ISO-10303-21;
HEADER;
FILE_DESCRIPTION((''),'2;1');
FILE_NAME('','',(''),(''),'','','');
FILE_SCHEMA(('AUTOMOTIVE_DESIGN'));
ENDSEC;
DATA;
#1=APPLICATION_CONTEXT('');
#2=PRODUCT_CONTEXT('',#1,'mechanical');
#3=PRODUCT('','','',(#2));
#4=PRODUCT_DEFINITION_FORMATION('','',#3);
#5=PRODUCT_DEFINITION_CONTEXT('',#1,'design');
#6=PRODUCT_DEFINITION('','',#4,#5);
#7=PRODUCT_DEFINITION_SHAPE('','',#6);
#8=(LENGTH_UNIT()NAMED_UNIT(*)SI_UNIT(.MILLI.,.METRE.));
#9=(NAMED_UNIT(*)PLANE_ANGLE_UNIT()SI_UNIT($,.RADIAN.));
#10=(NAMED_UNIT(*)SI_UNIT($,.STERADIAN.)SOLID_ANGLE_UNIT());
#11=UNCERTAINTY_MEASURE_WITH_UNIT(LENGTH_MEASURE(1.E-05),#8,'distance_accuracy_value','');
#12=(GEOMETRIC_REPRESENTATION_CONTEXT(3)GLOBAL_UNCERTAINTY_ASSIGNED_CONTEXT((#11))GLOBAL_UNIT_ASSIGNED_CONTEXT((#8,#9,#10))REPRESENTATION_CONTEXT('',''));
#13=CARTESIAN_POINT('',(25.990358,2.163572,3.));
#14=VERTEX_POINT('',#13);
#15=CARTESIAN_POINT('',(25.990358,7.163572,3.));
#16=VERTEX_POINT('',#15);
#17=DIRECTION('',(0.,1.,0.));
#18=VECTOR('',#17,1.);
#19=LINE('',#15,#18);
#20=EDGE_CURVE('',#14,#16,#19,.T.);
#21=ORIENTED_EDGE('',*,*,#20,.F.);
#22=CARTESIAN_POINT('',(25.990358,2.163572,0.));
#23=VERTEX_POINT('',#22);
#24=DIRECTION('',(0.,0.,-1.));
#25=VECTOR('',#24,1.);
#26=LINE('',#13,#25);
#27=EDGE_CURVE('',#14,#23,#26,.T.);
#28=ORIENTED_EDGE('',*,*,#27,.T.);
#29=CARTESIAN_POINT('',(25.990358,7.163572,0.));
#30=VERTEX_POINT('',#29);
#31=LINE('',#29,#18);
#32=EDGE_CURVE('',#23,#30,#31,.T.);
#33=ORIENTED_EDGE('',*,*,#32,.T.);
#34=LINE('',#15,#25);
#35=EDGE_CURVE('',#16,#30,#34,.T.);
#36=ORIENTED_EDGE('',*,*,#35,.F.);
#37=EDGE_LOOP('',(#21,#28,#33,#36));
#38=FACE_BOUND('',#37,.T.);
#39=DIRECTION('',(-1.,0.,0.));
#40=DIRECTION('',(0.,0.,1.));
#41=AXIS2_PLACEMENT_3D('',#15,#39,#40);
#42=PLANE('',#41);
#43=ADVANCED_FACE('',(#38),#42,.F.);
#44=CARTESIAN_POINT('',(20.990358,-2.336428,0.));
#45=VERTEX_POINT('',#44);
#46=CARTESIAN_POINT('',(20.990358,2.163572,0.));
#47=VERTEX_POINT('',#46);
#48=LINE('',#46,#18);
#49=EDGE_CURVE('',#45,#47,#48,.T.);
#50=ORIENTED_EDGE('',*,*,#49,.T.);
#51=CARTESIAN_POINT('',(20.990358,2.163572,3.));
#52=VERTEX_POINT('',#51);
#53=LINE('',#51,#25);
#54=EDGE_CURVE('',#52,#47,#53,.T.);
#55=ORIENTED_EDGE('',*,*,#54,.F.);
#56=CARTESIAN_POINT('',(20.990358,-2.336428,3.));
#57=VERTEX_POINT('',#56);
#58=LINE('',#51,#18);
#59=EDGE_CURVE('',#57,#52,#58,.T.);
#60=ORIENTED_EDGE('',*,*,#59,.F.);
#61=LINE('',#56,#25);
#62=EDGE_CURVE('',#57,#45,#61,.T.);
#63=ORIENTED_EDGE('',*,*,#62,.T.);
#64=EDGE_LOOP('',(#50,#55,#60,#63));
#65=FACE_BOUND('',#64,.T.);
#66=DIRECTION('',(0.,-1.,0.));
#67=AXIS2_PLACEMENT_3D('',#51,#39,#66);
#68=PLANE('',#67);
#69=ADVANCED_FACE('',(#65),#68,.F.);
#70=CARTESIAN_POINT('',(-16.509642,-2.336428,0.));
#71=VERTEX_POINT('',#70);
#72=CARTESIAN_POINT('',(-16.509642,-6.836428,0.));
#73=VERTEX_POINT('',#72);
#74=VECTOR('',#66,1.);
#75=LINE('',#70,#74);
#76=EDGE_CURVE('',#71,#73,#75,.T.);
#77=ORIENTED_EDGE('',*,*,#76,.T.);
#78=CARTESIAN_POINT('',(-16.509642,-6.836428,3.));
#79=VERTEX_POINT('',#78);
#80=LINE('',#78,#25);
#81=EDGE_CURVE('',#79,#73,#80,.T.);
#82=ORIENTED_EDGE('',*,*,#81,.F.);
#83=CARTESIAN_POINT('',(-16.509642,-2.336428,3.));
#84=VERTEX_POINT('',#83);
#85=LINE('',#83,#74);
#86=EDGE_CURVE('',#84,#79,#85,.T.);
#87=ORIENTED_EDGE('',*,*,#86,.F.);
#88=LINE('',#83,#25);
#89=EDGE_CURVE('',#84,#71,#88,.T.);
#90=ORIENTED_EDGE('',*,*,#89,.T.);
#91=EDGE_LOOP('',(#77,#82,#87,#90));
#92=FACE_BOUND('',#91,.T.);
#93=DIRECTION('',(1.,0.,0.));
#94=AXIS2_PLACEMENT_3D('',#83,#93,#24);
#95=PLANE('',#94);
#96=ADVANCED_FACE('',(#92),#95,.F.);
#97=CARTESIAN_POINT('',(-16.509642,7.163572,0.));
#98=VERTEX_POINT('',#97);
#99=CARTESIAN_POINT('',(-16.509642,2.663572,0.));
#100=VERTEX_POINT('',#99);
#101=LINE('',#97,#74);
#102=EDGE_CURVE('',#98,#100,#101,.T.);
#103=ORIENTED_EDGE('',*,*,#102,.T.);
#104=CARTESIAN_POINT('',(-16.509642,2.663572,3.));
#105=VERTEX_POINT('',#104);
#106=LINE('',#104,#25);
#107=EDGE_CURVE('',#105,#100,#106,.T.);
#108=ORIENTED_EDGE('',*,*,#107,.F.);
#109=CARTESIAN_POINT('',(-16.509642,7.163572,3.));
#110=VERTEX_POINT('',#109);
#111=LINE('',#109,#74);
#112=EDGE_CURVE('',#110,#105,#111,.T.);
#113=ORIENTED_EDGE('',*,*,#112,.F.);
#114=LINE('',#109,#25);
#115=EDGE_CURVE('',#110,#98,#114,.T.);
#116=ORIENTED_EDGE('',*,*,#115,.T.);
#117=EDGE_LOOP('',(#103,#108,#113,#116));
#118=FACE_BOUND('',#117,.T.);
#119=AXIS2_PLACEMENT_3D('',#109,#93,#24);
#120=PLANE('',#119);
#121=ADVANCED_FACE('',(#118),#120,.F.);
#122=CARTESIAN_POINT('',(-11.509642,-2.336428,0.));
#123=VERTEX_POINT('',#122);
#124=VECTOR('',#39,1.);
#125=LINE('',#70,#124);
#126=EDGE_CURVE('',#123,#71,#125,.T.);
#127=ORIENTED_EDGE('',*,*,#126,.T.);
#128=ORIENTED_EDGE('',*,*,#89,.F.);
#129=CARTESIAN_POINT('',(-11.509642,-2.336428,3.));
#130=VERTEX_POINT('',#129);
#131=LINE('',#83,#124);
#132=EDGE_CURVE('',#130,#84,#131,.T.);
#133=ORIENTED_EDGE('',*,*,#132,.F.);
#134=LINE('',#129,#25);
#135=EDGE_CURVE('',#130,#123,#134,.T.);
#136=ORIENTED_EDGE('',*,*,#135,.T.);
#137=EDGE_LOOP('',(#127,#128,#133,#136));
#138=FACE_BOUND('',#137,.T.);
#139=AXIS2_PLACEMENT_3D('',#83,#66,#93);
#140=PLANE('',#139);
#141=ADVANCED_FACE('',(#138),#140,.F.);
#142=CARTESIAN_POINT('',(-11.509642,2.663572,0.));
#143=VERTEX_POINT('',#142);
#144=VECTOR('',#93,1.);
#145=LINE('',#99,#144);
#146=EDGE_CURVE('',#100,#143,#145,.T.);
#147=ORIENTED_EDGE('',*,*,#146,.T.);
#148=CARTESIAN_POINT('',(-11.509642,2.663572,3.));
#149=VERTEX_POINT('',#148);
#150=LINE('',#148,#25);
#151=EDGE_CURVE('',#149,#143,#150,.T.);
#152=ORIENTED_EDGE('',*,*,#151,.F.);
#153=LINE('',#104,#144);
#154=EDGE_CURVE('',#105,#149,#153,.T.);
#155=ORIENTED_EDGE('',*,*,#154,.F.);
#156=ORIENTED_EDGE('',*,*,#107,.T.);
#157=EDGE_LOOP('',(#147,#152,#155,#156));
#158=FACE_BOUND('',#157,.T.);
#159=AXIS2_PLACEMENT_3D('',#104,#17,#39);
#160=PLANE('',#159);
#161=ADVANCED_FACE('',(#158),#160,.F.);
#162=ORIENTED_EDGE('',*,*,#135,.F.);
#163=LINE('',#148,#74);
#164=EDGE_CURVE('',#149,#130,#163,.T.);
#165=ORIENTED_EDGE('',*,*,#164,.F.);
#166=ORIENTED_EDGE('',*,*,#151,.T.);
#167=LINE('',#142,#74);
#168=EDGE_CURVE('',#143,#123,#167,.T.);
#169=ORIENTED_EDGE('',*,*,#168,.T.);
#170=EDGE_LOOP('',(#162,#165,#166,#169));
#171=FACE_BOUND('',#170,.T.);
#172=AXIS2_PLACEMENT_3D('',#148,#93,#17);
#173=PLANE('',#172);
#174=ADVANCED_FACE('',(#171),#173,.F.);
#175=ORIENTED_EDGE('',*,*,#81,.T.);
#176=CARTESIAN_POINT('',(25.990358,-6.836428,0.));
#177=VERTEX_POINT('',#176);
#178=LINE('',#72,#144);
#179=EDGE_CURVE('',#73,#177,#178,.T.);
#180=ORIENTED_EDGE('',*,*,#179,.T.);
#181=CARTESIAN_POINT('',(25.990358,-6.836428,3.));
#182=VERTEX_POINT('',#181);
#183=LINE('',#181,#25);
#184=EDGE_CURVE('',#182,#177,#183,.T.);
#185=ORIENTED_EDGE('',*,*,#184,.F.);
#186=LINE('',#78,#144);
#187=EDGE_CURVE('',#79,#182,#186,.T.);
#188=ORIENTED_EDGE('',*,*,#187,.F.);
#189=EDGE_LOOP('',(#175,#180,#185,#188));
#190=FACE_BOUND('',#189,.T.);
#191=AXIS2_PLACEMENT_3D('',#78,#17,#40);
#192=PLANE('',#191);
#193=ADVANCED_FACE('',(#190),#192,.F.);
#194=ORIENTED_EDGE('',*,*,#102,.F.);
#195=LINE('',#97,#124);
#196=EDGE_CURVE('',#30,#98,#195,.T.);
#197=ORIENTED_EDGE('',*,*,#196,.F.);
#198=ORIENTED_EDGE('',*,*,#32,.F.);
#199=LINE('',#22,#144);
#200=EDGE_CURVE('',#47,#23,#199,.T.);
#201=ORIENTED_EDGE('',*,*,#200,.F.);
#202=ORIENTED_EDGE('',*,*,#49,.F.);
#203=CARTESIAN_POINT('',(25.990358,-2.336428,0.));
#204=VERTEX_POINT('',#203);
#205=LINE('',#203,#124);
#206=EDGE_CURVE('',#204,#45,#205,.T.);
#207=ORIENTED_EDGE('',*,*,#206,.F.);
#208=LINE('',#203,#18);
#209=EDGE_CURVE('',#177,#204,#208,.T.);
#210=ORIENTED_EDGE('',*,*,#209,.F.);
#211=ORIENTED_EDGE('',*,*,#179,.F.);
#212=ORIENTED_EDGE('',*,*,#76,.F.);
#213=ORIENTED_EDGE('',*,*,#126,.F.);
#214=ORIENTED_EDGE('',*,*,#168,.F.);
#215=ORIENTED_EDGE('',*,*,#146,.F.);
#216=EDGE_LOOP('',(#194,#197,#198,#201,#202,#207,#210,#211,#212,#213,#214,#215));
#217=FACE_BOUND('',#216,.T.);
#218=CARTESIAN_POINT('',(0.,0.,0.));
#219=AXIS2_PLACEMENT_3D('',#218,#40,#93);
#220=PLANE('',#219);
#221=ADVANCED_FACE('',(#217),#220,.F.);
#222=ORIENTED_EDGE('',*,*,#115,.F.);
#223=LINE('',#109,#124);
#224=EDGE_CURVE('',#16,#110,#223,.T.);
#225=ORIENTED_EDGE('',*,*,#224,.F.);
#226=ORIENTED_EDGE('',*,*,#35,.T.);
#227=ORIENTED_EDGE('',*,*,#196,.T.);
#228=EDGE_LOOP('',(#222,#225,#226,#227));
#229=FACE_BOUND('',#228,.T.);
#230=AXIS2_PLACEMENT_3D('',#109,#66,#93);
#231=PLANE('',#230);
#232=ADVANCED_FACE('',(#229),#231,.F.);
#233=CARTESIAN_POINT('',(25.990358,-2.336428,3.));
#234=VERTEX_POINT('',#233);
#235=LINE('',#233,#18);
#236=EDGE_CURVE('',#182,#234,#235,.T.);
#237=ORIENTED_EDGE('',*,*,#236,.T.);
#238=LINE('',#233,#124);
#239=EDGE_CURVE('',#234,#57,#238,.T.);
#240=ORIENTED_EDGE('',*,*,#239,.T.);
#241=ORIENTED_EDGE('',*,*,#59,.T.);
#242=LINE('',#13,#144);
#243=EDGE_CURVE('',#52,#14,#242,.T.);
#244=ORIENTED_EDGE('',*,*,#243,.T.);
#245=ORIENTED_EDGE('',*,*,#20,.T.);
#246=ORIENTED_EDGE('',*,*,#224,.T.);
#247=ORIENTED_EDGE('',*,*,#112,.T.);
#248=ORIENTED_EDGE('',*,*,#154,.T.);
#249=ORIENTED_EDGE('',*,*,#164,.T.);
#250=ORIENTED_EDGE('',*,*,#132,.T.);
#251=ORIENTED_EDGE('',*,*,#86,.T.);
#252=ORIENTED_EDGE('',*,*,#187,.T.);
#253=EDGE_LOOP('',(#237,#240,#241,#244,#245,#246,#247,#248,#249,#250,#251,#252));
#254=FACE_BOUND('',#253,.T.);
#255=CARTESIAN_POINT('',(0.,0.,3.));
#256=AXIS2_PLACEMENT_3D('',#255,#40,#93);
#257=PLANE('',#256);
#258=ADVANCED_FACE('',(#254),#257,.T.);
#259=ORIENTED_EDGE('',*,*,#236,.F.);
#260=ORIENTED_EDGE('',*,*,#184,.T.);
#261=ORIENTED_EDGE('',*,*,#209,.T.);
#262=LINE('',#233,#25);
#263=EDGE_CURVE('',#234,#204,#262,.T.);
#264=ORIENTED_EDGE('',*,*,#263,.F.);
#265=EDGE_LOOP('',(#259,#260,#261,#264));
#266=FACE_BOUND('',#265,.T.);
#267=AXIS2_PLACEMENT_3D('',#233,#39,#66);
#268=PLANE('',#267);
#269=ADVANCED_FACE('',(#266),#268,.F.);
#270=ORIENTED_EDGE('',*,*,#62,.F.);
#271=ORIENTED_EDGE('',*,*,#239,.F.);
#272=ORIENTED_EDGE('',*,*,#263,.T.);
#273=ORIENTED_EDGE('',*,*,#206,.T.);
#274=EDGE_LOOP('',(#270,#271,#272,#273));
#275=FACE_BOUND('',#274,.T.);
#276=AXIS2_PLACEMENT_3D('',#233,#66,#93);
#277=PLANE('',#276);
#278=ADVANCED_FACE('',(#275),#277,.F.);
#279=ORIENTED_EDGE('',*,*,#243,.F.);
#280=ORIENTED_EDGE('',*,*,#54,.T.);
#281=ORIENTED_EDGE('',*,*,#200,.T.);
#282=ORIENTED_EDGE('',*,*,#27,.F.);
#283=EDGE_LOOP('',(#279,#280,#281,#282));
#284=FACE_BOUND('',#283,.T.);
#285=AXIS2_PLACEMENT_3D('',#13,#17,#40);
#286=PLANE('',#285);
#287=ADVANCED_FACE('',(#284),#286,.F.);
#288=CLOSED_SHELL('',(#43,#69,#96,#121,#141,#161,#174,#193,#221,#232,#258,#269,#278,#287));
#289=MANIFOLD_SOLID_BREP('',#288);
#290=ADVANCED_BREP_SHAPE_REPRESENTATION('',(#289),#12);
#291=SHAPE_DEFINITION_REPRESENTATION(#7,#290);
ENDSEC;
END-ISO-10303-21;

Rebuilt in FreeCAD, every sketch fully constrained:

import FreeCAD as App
import Part
import Sketcher

doc = App.newDocument("Part")
body = doc.addObject("PartDesign::Body", "Body")

sketch1 = body.newObject("Sketcher::SketchObject", "Sketch")
sketch1.AttachmentSupport = (doc.getObject("XY_Plane"), [""])
sketch1.MapMode = "FlatFace"
sketch1.addGeometry(Part.LineSegment(App.Vector(26, 7.2, 0), App.Vector(-16.5, 7.2, 0)), False)
sketch1.addGeometry(Part.LineSegment(App.Vector(-16.5, 7.2, 0), App.Vector(-16.5, 2.7, 0)), False)
sketch1.addGeometry(Part.LineSegment(App.Vector(-16.5, 2.7, 0), App.Vector(-11.5, 2.7, 0)), False)
sketch1.addGeometry(Part.LineSegment(App.Vector(-11.5, 2.7, 0), App.Vector(-11.5, -2.3, 0)), False)
sketch1.addGeometry(Part.LineSegment(App.Vector(-11.5, -2.3, 0), App.Vector(-16.5, -2.3, 0)), False)
sketch1.addGeometry(Part.LineSegment(App.Vector(-16.5, -2.3, 0), App.Vector(-16.5, -6.8, 0)), False)
sketch1.addGeometry(Part.LineSegment(App.Vector(-16.5, -6.8, 0), App.Vector(26, -6.8, 0)), False)
sketch1.addGeometry(Part.LineSegment(App.Vector(26, -6.8, 0), App.Vector(26, -2.3, 0)), False)
sketch1.addGeometry(Part.LineSegment(App.Vector(26, -2.3, 0), App.Vector(21, -2.3, 0)), False)
sketch1.addGeometry(Part.LineSegment(App.Vector(21, -2.3, 0), App.Vector(21, 2.2, 0)), False)
sketch1.addGeometry(Part.LineSegment(App.Vector(21, 2.2, 0), App.Vector(26, 2.2, 0)), False)
sketch1.addGeometry(Part.LineSegment(App.Vector(26, 2.2, 0), App.Vector(26, 7.2, 0)), False)
sketch1.addConstraint(Sketcher.Constraint("Coincident", 0, 2, 1, 1))
sketch1.addConstraint(Sketcher.Constraint("Coincident", 1, 2, 2, 1))
sketch1.addConstraint(Sketcher.Constraint("Coincident", 2, 2, 3, 1))
sketch1.addConstraint(Sketcher.Constraint("Coincident", 3, 2, 4, 1))
sketch1.addConstraint(Sketcher.Constraint("Coincident", 4, 2, 5, 1))
sketch1.addConstraint(Sketcher.Constraint("Coincident", 5, 2, 6, 1))
sketch1.addConstraint(Sketcher.Constraint("Coincident", 6, 2, 7, 1))
sketch1.addConstraint(Sketcher.Constraint("Coincident", 7, 2, 8, 1))
sketch1.addConstraint(Sketcher.Constraint("Coincident", 8, 2, 9, 1))
sketch1.addConstraint(Sketcher.Constraint("Coincident", 9, 2, 10, 1))
sketch1.addConstraint(Sketcher.Constraint("Coincident", 10, 2, 11, 1))
sketch1.addConstraint(Sketcher.Constraint("Coincident", 11, 2, 0, 1))
sketch1.addConstraint(Sketcher.Constraint("Horizontal", 0))
sketch1.addConstraint(Sketcher.Constraint("Vertical", 1))
sketch1.addConstraint(Sketcher.Constraint("Horizontal", 2))
sketch1.addConstraint(Sketcher.Constraint("Vertical", 3))
sketch1.addConstraint(Sketcher.Constraint("Horizontal", 4))
sketch1.addConstraint(Sketcher.Constraint("Vertical", 5))
sketch1.addConstraint(Sketcher.Constraint("Horizontal", 6))
sketch1.addConstraint(Sketcher.Constraint("Vertical", 7))
sketch1.addConstraint(Sketcher.Constraint("Horizontal", 8))
sketch1.addConstraint(Sketcher.Constraint("Vertical", 9))
sketch1.addConstraint(Sketcher.Constraint("Horizontal", 10))
sketch1.addConstraint(Sketcher.Constraint("Vertical", 11))
sketch1.addConstraint(Sketcher.Constraint("Horizontal", 4, 2, 7, 2))
sketch1.addConstraint(Sketcher.Constraint("Vertical", 1, 2, 4, 2))
sketch1.addConstraint(Sketcher.Constraint("Vertical", 7, 2, 10, 2))
sketch1.addConstraint(Sketcher.Constraint("Equal", 4, 8))
sketch1.addConstraint(Sketcher.Constraint("Equal", 10, 3))
sketch1.addConstraint(Sketcher.Constraint("Equal", 1, 5))
sketch1.addConstraint(Sketcher.Constraint("Equal", 7, 9))
sketch1.addConstraint(Sketcher.Constraint("DistanceX", 2, 1, 2, 2, 5.0))
sketch1.addConstraint(Sketcher.Constraint("DistanceX", 0, 2, 0, 1, 42.5))
sketch1.addConstraint(Sketcher.Constraint("DistanceY", 1, 2, 1, 1, 4.5))
sketch1.addConstraint(Sketcher.Constraint("DistanceX", 0, 2, -1, 1, 16.509642))
sketch1.addConstraint(Sketcher.Constraint("DistanceY", -1, 1, 0, 2, 7.163572))
pad1 = body.newObject("PartDesign::Pad", "Pad")
pad1.Profile = sketch1
pad1.Length = 3

doc.recompute()
